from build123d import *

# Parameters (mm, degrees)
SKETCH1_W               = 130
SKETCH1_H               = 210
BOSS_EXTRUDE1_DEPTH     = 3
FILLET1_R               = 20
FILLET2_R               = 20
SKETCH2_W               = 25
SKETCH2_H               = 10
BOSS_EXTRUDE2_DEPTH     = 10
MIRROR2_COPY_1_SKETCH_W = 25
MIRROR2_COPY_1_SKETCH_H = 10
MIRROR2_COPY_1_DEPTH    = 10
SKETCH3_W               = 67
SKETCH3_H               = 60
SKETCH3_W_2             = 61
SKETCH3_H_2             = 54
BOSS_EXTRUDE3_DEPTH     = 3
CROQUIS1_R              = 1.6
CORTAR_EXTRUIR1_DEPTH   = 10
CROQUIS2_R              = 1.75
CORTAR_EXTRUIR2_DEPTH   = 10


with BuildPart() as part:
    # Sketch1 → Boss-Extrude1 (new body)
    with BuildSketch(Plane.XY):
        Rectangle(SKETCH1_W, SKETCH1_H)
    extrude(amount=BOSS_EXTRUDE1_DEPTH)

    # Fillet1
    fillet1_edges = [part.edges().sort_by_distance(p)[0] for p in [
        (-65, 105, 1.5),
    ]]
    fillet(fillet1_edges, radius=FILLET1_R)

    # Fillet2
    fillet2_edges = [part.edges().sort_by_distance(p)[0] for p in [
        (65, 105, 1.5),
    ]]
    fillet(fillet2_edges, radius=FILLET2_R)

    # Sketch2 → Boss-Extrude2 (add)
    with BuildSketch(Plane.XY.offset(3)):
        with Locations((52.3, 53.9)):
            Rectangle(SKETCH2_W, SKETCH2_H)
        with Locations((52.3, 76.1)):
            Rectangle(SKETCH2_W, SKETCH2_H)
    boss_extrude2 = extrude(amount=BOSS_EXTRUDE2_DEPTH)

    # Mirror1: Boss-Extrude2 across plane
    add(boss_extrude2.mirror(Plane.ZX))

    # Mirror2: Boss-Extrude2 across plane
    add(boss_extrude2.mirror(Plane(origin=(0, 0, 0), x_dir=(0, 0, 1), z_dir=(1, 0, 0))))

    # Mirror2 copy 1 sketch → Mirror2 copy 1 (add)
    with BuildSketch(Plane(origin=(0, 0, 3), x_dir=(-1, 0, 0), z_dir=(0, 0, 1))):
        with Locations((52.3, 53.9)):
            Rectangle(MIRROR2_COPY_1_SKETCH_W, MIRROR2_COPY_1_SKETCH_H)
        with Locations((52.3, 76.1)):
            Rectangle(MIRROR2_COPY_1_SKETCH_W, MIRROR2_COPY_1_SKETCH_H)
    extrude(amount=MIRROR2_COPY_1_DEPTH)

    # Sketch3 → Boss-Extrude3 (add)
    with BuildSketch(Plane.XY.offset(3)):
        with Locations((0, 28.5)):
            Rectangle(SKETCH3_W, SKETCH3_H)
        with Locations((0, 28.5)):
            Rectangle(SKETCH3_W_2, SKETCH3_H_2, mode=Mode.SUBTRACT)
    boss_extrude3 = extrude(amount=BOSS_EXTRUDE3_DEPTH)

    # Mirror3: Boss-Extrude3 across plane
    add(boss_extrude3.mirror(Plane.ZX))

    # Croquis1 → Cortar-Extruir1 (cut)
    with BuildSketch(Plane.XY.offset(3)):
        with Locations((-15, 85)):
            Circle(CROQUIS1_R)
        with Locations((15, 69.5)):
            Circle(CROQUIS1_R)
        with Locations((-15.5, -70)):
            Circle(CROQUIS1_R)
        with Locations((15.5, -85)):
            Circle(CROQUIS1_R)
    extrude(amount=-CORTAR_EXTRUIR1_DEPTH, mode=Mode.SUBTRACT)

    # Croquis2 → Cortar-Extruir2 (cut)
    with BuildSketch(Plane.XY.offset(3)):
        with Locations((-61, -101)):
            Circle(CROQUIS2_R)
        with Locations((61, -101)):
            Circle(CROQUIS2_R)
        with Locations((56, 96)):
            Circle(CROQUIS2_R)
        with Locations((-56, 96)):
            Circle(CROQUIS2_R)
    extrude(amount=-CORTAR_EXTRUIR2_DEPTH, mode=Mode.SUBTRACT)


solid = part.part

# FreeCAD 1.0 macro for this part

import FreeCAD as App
import Part
import Sketcher
Q = App.Units.Quantity


def edges_at(feature, points):
    """Names of the edges that pass closest to the given points."""
    edges = feature.Shape.Edges
    near = lambda p: min(range(len(edges)), key=lambda i: edges[i].distToShape(Part.Vertex(*p))[0])
    return sorted({f"Edge{near(p) + 1}" for p in points})


def add_polygon(sketch, points):
    """Adds a closed chain of lines whose ends are joined by coincident constraints."""
    first, n = sketch.GeometryCount, len(points)
    for a, b in zip(points, points[1:] + points[:1]):
        sketch.addGeometry(Part.LineSegment(App.Vector(*a, 0), App.Vector(*b, 0)), False)
    for i in range(n):
        sketch.addConstraint(Sketcher.Constraint("Coincident", first + i, 2, first + (i + 1) % n, 1))

doc = App.newDocument("Part")
params = doc.addObject("Spreadsheet::Sheet", "Params")
for row, (alias, value) in enumerate([
    ("sketch1_width", "130 mm"),
    ("sketch1_height", "210 mm"),
    ("pad1_length", "3 mm"),
    ("fillet_radius", "20 mm"),
    ("fillet2_radius", "20 mm"),
    ("sketch2_width", "25 mm"),
    ("sketch2_height", "10 mm"),
    ("pad2_length", "10 mm"),
    ("sketch3_width", "25 mm"),
    ("sketch3_height", "10 mm"),
    ("pad3_length", "10 mm"),
    ("sketch4_width", "67 mm"),
    ("sketch4_width2", "61 mm"),
    ("sketch4_height", "60 mm"),
    ("sketch4_height2", "54 mm"),
    ("pad4_length", "3 mm"),
    ("sketch5_diameter", "3.2 mm"),
    ("pocket1_length", "10 mm"),
    ("sketch6_diameter", "3.5 mm"),
    ("pocket2_length", "10 mm"),
], start=1):
    params.set(f"A{row}", alias)
    params.set(f"B{row}", "=" + value)
    params.setAlias(f"B{row}", alias)

body = doc.addObject("PartDesign::Body", "Body")

# Sketch on XY plane
sketch1 = body.newObject("Sketcher::SketchObject", "Sketch")
sketch1.AttachmentSupport = (doc.getObject("XY_Plane"), [""])
sketch1.MapMode = "FlatFace"
add_polygon(sketch1, [(-65, 105), (-65, -105), (65, -105), (65, 105)])  # lines 0-3
sketch1.addConstraint(Sketcher.Constraint("Vertical", 0))
sketch1.addConstraint(Sketcher.Constraint("Horizontal", 1))
sketch1.addConstraint(Sketcher.Constraint("Vertical", 2))
sketch1.addConstraint(Sketcher.Constraint("Horizontal", 3))
sketch1.addConstraint(Sketcher.Constraint("Symmetric", 0, 2, 2, 2, -1, 1))
sketch1.addConstraint(Sketcher.Constraint("DistanceX", 1, 1, 1, 2, Q("130 mm")))
sketch1.addConstraint(Sketcher.Constraint("DistanceY", 0, 2, 0, 1, Q("210 mm")))
sketch1.setExpression("Constraints[9]", "Params.sketch1_width")
sketch1.setExpression("Constraints[10]", "Params.sketch1_height")
pad1 = body.newObject("PartDesign::Pad", "Pad")
pad1.Profile = sketch1
pad1.setExpression("Length", "Params.pad1_length")
doc.recompute()

fillet = body.newObject("PartDesign::Fillet", "Fillet")
fillet.Base = (pad1, edges_at(pad1, [(-65, 105, 1.5)]))
fillet.setExpression("Radius", "Params.fillet_radius")
doc.recompute()

fillet2 = body.newObject("PartDesign::Fillet", "Fillet001")
fillet2.Base = (fillet, edges_at(fillet, [(65, 105, 1.5)]))
fillet2.setExpression("Radius", "Params.fillet2_radius")

# Sketch on XY plane
sketch2 = body.newObject("Sketcher::SketchObject", "Sketch001")
sketch2.AttachmentSupport = (doc.getObject("XY_Plane"), [""])
sketch2.MapMode = "FlatFace"
sketch2.AttachmentOffset = App.Placement(App.Vector(0, 0, 3), App.Rotation())
add_polygon(sketch2, [(40, 59), (40, 49), (65, 49), (65, 59)])  # lines 0-3
add_polygon(sketch2, [(40, 81), (40, 71), (65, 71), (65, 81)])  # lines 4-7
sketch2.addConstraint(Sketcher.Constraint("Vertical", 0))
sketch2.addConstraint(Sketcher.Constraint("Horizontal", 1))
sketch2.addConstraint(Sketcher.Constraint("Vertical", 2))
sketch2.addConstraint(Sketcher.Constraint("Horizontal", 3))
sketch2.addConstraint(Sketcher.Constraint("Vertical", 4))
sketch2.addConstraint(Sketcher.Constraint("Horizontal", 5))
sketch2.addConstraint(Sketcher.Constraint("Vertical", 6))
sketch2.addConstraint(Sketcher.Constraint("Horizontal", 7))
sketch2.addConstraint(Sketcher.Constraint("Vertical", 3, 2, 4, 2))
sketch2.addConstraint(Sketcher.Constraint("Vertical", 2, 2, 5, 2))
sketch2.addConstraint(Sketcher.Constraint("Equal", 2, 4))
sketch2.addConstraint(Sketcher.Constraint("DistanceX", 1, 1, 1, 2, Q("25 mm")))
sketch2.addConstraint(Sketcher.Constraint("DistanceY", 0, 2, 0, 1, Q("10 mm")))
sketch2.addConstraint(Sketcher.Constraint("DistanceX", -1, 1, 0, 2, Q("39.8 mm")))
sketch2.addConstraint(Sketcher.Constraint("DistanceY", -1, 1, 0, 2, Q("48.9 mm")))
sketch2.addConstraint(Sketcher.Constraint("DistanceY", -1, 1, 4, 2, Q("71.1 mm")))
sketch2.setExpression("Constraints[19]", "Params.sketch2_width")
sketch2.setExpression("Constraints[20]", "Params.sketch2_height")
pad2 = body.newObject("PartDesign::Pad", "Pad001")
pad2.Profile = sketch2
pad2.setExpression("Length", "Params.pad2_length")
doc.recompute()

mirrored = body.newObject("PartDesign::Mirrored", "Mirrored")
mirrored.Originals = [pad2]
mirrored.MirrorPlane = (doc.getObject("XZ_Plane"), [""])
body.Tip = mirrored
doc.recompute()

mirrored2 = body.newObject("PartDesign::Mirrored", "Mirrored001")
mirrored2.Originals = [pad2]
mirrored2.MirrorPlane = (doc.getObject("YZ_Plane"), [""])
body.Tip = mirrored2

# Sketch on XY plane
sketch3 = body.newObject("Sketcher::SketchObject", "Sketch002")
sketch3.AttachmentSupport = (doc.getObject("XY_Plane"), [""])
sketch3.MapMode = "FlatFace"
sketch3.AttachmentOffset = App.Placement(App.Vector(0, 0, 3), App.Rotation())
add_polygon(sketch3, [(-40, -59), (-40, -49), (-65, -49), (-65, -59)])  # lines 0-3
add_polygon(sketch3, [(-40, -81), (-40, -71), (-65, -71), (-65, -81)])  # lines 4-7
sketch3.addConstraint(Sketcher.Constraint("Vertical", 0))
sketch3.addConstraint(Sketcher.Constraint("Horizontal", 1))
sketch3.addConstraint(Sketcher.Constraint("Vertical", 2))
sketch3.addConstraint(Sketcher.Constraint("Horizontal", 3))
sketch3.addConstraint(Sketcher.Constraint("Vertical", 4))
sketch3.addConstraint(Sketcher.Constraint("Horizontal", 5))
sketch3.addConstraint(Sketcher.Constraint("Vertical", 6))
sketch3.addConstraint(Sketcher.Constraint("Horizontal", 7))
sketch3.addConstraint(Sketcher.Constraint("Vertical", 3, 2, 4, 2))
sketch3.addConstraint(Sketcher.Constraint("Vertical", 2, 2, 5, 2))
sketch3.addConstraint(Sketcher.Constraint("Equal", 2, 4))
sketch3.addConstraint(Sketcher.Constraint("DistanceX", 1, 2, 1, 1, Q("25 mm")))
sketch3.addConstraint(Sketcher.Constraint("DistanceY", 0, 1, 0, 2, Q("10 mm")))
sketch3.addConstraint(Sketcher.Constraint("DistanceX", 0, 2, -1, 1, Q("39.8 mm")))
sketch3.addConstraint(Sketcher.Constraint("DistanceY", 0, 2, -1, 1, Q("48.9 mm")))
sketch3.addConstraint(Sketcher.Constraint("DistanceY", 4, 2, -1, 1, Q("71.1 mm")))
sketch3.setExpression("Constraints[19]", "Params.sketch3_width")
sketch3.setExpression("Constraints[20]", "Params.sketch3_height")
pad3 = body.newObject("PartDesign::Pad", "Pad002")
pad3.Profile = sketch3
pad3.setExpression("Length", "Params.pad3_length")

# Sketch on XY plane
sketch4 = body.newObject("Sketcher::SketchObject", "Sketch003")
sketch4.AttachmentSupport = (doc.getObject("XY_Plane"), [""])
sketch4.MapMode = "FlatFace"
sketch4.AttachmentOffset = App.Placement(App.Vector(0, 0, 3), App.Rotation())
add_polygon(sketch4, [(-34, 58), (-34, -2), (34, -2), (34, 58)])  # lines 0-3
add_polygon(sketch4, [(30, 2), (-30, 2), (-30, 56), (30, 56)])  # lines 4-7
sketch4.addConstraint(Sketcher.Constraint("Vertical", 0))
sketch4.addConstraint(Sketcher.Constraint("Horizontal", 1))
sketch4.addConstraint(Sketcher.Constraint("Vertical", 2))
sketch4.addConstraint(Sketcher.Constraint("Horizontal", 3))
sketch4.addConstraint(Sketcher.Constraint("Horizontal", 4))
sketch4.addConstraint(Sketcher.Constraint("Vertical", 5))
sketch4.addConstraint(Sketcher.Constraint("Horizontal", 6))
sketch4.addConstraint(Sketcher.Constraint("Vertical", 7))
sketch4.addConstraint(Sketcher.Constraint("DistanceX", 1, 1, 1, 2, Q("67 mm")))
sketch4.addConstraint(Sketcher.Constraint("DistanceX", 4, 2, 4, 1, Q("61 mm")))
sketch4.addConstraint(Sketcher.Constraint("DistanceY", 0, 2, 0, 1, Q("60 mm")))
sketch4.addConstraint(Sketcher.Constraint("DistanceY", 5, 1, 5, 2, Q("54 mm")))
sketch4.addConstraint(Sketcher.Constraint("DistanceX", 0, 2, 4, 2, Q("3 mm")))
sketch4.addConstraint(Sketcher.Constraint("DistanceY", 0, 2, 4, 2, Q("3 mm")))
sketch4.addConstraint(Sketcher.Constraint("DistanceX", 0, 2, -1, 1, Q("33.5 mm")))
sketch4.addConstraint(Sketcher.Constraint("DistanceY", 0, 2, -1, 1, Q("1.5 mm")))
sketch4.setExpression("Constraints[16]", "Params.sketch4_width")
sketch4.setExpression("Constraints[17]", "Params.sketch4_width2")
sketch4.setExpression("Constraints[18]", "Params.sketch4_height")
sketch4.setExpression("Constraints[19]", "Params.sketch4_height2")
pad4 = body.newObject("PartDesign::Pad", "Pad003")
pad4.Profile = sketch4
pad4.setExpression("Length", "Params.pad4_length")
doc.recompute()

mirrored3 = body.newObject("PartDesign::Mirrored", "Mirrored002")
mirrored3.Originals = [pad4]
mirrored3.MirrorPlane = (doc.getObject("XZ_Plane"), [""])
body.Tip = mirrored3

# Sketch on XY plane
sketch5 = body.newObject("Sketcher::SketchObject", "Sketch004")
sketch5.AttachmentSupport = (doc.getObject("XY_Plane"), [""])
sketch5.MapMode = "FlatFace"
sketch5.AttachmentOffset = App.Placement(App.Vector(0, 0, 3), App.Rotation())
sketch5.addGeometry(Part.Circle(App.Vector(-15, 85, 0), App.Vector(0, 0, 1), 1.6), False)
sketch5.addGeometry(Part.Circle(App.Vector(15, 69.5, 0), App.Vector(0, 0, 1), 1.6), False)
sketch5.addGeometry(Part.Circle(App.Vector(-15.5, -70, 0), App.Vector(0, 0, 1), 1.6), False)
sketch5.addGeometry(Part.Circle(App.Vector(15.5, -85, 0), App.Vector(0, 0, 1), 1.6), False)
sketch5.addConstraint(Sketcher.Constraint("Equal", 0, 1))
sketch5.addConstraint(Sketcher.Constraint("Equal", 1, 2))
sketch5.addConstraint(Sketcher.Constraint("Equal", 2, 3))
sketch5.addConstraint(Sketcher.Constraint("Diameter", 0, Q("3.2 mm")))
sketch5.addConstraint(Sketcher.Constraint("DistanceX", 0, 3, -1, 1, Q("15 mm")))
sketch5.addConstraint(Sketcher.Constraint("DistanceY", -1, 1, 0, 3, Q("85 mm")))
sketch5.addConstraint(Sketcher.Constraint("DistanceX", -1, 1, 1, 3, Q("15 mm")))
sketch5.addConstraint(Sketcher.Constraint("DistanceY", 2, 3, -1, 1, Q("70 mm")))
sketch5.addConstraint(Sketcher.Constraint("DistanceY", 3, 3, -1, 1, Q("85 mm")))
sketch5.addConstraint(Sketcher.Constraint("DistanceX", 2, 3, 3, 3, Q("31 mm")))
sketch5.addConstraint(Sketcher.Constraint("DistanceY", -1, 1, 1, 3, Q("69.5 mm")))
sketch5.addConstraint(Sketcher.Constraint("DistanceX", 2, 3, -1, 1, Q("15.5 mm")))
sketch5.setExpression("Constraints[3]", "Params.sketch5_diameter")
pocket1 = body.newObject("PartDesign::Pocket", "Pocket")
pocket1.Profile = sketch5
pocket1.setExpression("Length", "Params.pocket1_length")

# Sketch on XY plane
sketch6 = body.newObject("Sketcher::SketchObject", "Sketch005")
sketch6.AttachmentSupport = (doc.getObject("XY_Plane"), [""])
sketch6.MapMode = "FlatFace"
sketch6.AttachmentOffset = App.Placement(App.Vector(0, 0, 3), App.Rotation())
sketch6.addGeometry(Part.Circle(App.Vector(-61, -101, 0), App.Vector(0, 0, 1), 1.8), False)
sketch6.addGeometry(Part.Circle(App.Vector(61, -101, 0), App.Vector(0, 0, 1), 1.8), False)
sketch6.addGeometry(Part.Circle(App.Vector(56, 96, 0), App.Vector(0, 0, 1), 1.8), False)
sketch6.addGeometry(Part.Circle(App.Vector(-56, 96, 0), App.Vector(0, 0, 1), 1.8), False)
sketch6.addConstraint(Sketcher.Constraint("Equal", 0, 1))
sketch6.addConstraint(Sketcher.Constraint("Equal", 1, 2))
sketch6.addConstraint(Sketcher.Constraint("Equal", 2, 3))
sketch6.addConstraint(Sketcher.Constraint("Symmetric", 0, 3, 1, 3, -2))
sketch6.addConstraint(Sketcher.Constraint("Symmetric", 2, 3, 3, 3, -2))
sketch6.addConstraint(Sketcher.Constraint("Diameter", 0, Q("3.5 mm")))
sketch6.addConstraint(Sketcher.Constraint("DistanceX", 0, 3, -1, 1, Q("61 mm")))
sketch6.addConstraint(Sketcher.Constraint("DistanceY", 0, 3, -1, 1, Q("101 mm")))
sketch6.addConstraint(Sketcher.Constraint("DistanceX", -1, 1, 2, 3, Q("56 mm")))
sketch6.addConstraint(Sketcher.Constraint("DistanceY", -1, 1, 2, 3, Q("96 mm")))
sketch6.setExpression("Constraints[5]", "Params.sketch6_diameter")
pocket2 = body.newObject("PartDesign::Pocket", "Pocket001")
pocket2.Profile = sketch6
pocket2.setExpression("Length", "Params.pocket2_length")

doc.recompute()
